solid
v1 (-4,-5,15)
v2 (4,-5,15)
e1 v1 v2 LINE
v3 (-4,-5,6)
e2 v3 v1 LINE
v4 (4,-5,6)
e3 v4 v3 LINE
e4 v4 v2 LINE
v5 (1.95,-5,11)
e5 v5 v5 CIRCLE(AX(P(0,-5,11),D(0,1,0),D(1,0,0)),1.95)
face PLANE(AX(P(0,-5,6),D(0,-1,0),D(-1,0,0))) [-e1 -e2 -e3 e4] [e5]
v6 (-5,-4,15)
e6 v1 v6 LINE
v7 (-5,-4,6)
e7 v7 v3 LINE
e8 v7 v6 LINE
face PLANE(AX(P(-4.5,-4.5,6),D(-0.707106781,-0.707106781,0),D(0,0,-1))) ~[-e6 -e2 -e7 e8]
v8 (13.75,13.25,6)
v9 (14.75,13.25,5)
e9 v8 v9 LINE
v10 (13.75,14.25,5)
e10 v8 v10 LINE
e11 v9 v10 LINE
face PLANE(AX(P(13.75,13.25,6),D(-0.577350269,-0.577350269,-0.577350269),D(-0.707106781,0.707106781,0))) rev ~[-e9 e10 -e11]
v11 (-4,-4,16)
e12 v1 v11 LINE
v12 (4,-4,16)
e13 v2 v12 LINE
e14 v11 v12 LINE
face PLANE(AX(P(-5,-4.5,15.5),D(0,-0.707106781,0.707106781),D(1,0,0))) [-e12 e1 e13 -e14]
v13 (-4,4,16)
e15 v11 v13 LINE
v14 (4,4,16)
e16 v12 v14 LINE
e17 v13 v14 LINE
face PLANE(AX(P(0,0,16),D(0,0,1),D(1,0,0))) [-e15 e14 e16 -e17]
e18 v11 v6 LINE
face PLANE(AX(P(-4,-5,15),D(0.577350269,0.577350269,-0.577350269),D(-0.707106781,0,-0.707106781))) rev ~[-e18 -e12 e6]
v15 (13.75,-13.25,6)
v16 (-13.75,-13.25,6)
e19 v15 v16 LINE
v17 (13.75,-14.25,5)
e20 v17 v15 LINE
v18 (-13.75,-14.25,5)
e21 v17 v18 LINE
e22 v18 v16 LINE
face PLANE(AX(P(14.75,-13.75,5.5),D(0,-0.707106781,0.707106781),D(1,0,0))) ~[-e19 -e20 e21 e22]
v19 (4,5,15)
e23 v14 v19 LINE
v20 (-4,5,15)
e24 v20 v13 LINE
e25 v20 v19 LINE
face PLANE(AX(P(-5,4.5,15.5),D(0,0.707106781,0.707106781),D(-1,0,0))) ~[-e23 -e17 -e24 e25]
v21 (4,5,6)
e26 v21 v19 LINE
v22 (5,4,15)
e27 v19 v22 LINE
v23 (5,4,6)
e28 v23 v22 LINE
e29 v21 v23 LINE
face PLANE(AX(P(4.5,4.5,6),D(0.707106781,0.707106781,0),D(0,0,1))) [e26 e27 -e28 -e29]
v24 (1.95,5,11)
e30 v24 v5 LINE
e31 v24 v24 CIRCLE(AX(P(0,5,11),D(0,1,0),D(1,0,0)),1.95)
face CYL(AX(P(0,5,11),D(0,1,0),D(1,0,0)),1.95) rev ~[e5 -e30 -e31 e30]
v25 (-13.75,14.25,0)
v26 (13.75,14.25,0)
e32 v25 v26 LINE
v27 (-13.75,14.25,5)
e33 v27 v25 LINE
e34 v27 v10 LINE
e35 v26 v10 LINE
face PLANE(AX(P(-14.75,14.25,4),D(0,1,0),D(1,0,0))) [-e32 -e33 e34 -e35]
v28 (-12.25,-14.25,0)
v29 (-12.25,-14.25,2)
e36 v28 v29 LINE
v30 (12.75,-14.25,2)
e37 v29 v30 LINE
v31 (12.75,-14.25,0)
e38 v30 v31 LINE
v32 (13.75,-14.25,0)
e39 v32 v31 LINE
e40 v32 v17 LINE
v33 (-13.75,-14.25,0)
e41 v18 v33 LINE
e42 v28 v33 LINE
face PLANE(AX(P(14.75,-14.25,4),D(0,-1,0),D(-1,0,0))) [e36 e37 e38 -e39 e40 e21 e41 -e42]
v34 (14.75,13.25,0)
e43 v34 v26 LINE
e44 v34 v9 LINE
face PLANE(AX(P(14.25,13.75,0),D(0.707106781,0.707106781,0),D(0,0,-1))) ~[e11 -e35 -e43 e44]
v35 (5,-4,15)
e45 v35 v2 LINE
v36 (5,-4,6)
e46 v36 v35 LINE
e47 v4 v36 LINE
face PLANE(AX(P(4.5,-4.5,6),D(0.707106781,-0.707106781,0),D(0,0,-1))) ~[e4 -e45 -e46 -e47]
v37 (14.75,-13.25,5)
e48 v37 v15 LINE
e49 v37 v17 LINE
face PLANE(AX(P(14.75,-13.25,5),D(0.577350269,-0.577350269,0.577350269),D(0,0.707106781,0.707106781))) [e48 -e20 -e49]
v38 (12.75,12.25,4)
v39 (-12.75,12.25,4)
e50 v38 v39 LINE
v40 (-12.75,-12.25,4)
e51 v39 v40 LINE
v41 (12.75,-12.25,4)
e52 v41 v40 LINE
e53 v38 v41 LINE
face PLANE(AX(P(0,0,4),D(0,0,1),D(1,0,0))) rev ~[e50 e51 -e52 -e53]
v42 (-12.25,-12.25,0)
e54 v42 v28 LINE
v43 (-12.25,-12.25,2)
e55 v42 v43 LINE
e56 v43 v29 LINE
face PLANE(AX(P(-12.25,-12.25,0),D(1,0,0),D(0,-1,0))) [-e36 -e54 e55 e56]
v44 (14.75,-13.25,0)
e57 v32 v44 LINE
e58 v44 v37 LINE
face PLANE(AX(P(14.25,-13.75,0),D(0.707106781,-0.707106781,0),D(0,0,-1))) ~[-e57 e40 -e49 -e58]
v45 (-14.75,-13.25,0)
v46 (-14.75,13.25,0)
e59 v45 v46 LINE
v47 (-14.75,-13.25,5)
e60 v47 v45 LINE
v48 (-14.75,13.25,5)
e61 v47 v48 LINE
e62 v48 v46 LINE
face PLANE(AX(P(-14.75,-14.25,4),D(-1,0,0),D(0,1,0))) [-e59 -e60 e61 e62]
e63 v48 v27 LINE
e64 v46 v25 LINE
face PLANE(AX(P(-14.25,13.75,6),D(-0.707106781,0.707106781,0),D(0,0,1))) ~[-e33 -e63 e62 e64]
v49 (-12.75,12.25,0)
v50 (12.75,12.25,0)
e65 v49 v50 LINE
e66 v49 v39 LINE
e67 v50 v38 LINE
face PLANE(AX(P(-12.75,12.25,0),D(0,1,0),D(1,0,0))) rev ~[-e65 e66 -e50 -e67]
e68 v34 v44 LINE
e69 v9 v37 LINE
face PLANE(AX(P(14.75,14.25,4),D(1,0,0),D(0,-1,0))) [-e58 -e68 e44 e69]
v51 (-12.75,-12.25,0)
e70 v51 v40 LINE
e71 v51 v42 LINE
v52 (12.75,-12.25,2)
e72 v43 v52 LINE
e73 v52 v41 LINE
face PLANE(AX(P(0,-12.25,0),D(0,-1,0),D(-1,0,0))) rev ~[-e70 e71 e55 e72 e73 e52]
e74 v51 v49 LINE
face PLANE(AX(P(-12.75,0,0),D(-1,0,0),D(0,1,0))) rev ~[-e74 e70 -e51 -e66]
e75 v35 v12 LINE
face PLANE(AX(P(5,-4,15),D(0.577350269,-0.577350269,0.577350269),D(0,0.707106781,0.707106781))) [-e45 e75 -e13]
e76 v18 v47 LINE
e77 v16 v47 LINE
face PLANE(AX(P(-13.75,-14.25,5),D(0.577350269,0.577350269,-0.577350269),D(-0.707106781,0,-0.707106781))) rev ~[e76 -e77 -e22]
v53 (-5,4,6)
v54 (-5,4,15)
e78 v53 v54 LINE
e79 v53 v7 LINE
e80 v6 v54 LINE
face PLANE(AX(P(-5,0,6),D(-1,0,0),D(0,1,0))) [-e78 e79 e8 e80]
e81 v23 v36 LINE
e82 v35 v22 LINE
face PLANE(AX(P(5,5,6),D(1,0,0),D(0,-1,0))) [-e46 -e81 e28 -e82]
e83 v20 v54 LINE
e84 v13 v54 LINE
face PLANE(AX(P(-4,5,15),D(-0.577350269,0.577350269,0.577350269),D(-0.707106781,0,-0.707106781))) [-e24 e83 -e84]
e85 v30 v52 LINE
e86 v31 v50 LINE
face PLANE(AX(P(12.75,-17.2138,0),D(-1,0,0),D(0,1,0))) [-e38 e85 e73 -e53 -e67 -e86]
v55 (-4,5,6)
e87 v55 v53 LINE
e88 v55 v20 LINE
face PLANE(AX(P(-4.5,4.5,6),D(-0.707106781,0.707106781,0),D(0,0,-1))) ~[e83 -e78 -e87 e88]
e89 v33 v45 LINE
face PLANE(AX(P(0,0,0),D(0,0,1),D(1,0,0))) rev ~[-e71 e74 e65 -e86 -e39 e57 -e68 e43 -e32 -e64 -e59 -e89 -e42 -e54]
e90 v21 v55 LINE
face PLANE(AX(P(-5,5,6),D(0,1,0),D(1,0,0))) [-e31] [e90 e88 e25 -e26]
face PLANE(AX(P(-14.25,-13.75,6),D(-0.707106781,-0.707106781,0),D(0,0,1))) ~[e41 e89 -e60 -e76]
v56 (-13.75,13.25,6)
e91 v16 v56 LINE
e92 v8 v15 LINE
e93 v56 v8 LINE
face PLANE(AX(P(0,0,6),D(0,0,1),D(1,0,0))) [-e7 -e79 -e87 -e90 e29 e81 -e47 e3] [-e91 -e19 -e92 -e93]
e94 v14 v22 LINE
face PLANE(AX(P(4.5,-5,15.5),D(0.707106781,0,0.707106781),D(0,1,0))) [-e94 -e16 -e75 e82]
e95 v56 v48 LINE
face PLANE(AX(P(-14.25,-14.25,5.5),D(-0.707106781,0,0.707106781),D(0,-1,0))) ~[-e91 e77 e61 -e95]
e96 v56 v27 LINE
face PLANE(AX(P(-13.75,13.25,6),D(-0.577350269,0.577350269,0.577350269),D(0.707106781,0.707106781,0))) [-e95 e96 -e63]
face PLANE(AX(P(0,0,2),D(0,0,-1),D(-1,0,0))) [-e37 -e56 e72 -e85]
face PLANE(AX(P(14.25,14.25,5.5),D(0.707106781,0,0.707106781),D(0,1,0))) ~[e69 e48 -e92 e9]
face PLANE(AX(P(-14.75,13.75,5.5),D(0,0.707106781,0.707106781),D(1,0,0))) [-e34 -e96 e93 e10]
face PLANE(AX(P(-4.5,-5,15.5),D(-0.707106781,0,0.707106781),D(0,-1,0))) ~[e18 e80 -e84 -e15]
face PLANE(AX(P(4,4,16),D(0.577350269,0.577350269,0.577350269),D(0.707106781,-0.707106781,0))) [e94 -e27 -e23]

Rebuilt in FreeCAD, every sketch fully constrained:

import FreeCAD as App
import Part
import Sketcher
from FreeCAD import Vector
Q = App.Units.Quantity


def edges_at(feature, points):
    """Names of the edges that pass closest to the given points."""
    edges = feature.Shape.Edges
    near = lambda p: min(range(len(edges)), key=lambda i: edges[i].distToShape(Part.Vertex(*p))[0])
    return sorted({f"Edge{near(p) + 1}" for p in points})

doc = App.newDocument("Part")
body = doc.addObject("PartDesign::Body", "Body")

# Sketch on XY plane
sketch1 = body.newObject("Sketcher::SketchObject", "Sketch")
sketch1.AttachmentSupport = (doc.getObject("XY_Plane"), [""])
sketch1.MapMode = "FlatFace"
sketch1.addGeometry([
    Part.LineSegment(Vector(-15, 14, 0), Vector(-15, -14, 0)),  # 0
    Part.LineSegment(Vector(-15, -14, 0), Vector(15, -14, 0)),  # 1
    Part.LineSegment(Vector(15, -14, 0), Vector(15, 14, 0)),  # 2
    Part.LineSegment(Vector(15, 14, 0), Vector(-15, 14, 0)),  # 3
    Part.LineSegment(Vector(-13, 12, 0), Vector(13, 12, 0)),  # 4
    Part.LineSegment(Vector(13, 12, 0), Vector(13, -12, 0)),  # 5
    Part.LineSegment(Vector(13, -12, 0), Vector(-13, -12, 0)),  # 6
    Part.LineSegment(Vector(-13, -12, 0), Vector(-13, 12, 0)),  # 7
], False)
sketch1.addConstraint([
    Sketcher.Constraint("Coincident", 0, 2, 1, 1),
    Sketcher.Constraint("Coincident", 1, 2, 2, 1),
    Sketcher.Constraint("Coincident", 2, 2, 3, 1),
    Sketcher.Constraint("Coincident", 3, 2, 0, 1),
    Sketcher.Constraint("Coincident", 4, 2, 5, 1),
    Sketcher.Constraint("Coincident", 5, 2, 6, 1),
    Sketcher.Constraint("Coincident", 6, 2, 7, 1),
    Sketcher.Constraint("Coincident", 7, 2, 4, 1),
    Sketcher.Constraint("Vertical", 0),
    Sketcher.Constraint("Horizontal", 1),
    Sketcher.Constraint("Vertical", 2),
    Sketcher.Constraint("Horizontal", 3),
    Sketcher.Constraint("Horizontal", 4),
    Sketcher.Constraint("Vertical", 5),
    Sketcher.Constraint("Horizontal", 6),
    Sketcher.Constraint("Vertical", 7),
    Sketcher.Constraint("Symmetric", 0, 2, 2, 2, -1, 1),
    Sketcher.Constraint("Symmetric", 4, 2, 6, 2, -1, 1),
    Sketcher.Constraint("DistanceX", 4, 1, 4, 2, Q("25.5 mm")),
    Sketcher.Constraint("DistanceY", 5, 2, 5, 1, Q("24.5 mm")),
    Sketcher.Constraint("DistanceX", 4, 2, 2, 2, Q("2 mm")),
    Sketcher.Constraint("DistanceY", 4, 2, 2, 2, Q("2 mm")),
])
pad1 = body.newObject("PartDesign::Pad", "Pad")
pad1.Profile = sketch1
pad1.Length = 4

# Sketch on XY plane
sketch2 = body.newObject("Sketcher::SketchObject", "Sketch001")
sketch2.AttachmentSupport = (doc.getObject("XY_Plane"), [""])
sketch2.MapMode = "FlatFace"
sketch2.AttachmentOffset = App.Placement(Vector(0, 0, 4), App.Rotation())
sketch2.addGeometry([
    Part.LineSegment(Vector(-15, -14, 0), Vector(15, -14, 0)),
    Part.LineSegment(Vector(15, -14, 0), Vector(15, 14, 0)),
    Part.LineSegment(Vector(15, 14, 0), Vector(-15, 14, 0)),
    Part.LineSegment(Vector(-15, 14, 0), Vector(-15, -14, 0)),
], False)
sketch2.addConstraint([
    Sketcher.Constraint("Coincident", 0, 2, 1, 1),
    Sketcher.Constraint("Coincident", 1, 2, 2, 1),
    Sketcher.Constraint("Coincident", 2, 2, 3, 1),
    Sketcher.Constraint("Coincident", 3, 2, 0, 1),
    Sketcher.Constraint("Horizontal", 0),
    Sketcher.Constraint("Vertical", 1),
    Sketcher.Constraint("Horizontal", 2),
    Sketcher.Constraint("Vertical", 3),
    Sketcher.Constraint("Symmetric", 0, 2, 2, 2, -1, 1),
    Sketcher.Constraint("DistanceX", 0, 1, 0, 2, Q("29.5 mm")),
    Sketcher.Constraint("DistanceY", 1, 1, 1, 2, Q("28.5 mm")),
])
pad2 = body.newObject("PartDesign::Pad", "Pad001")
pad2.Profile = sketch2
pad2.Length = 2
doc.recompute()

chamfer = body.newObject("PartDesign::Chamfer", "Chamfer")
chamfer.Base = (pad2, edges_at(pad2, [
    (14.75, 14.25, 3),
    (-14.75, 14.25, 3),
    (-14.75, 0, 6),
    (0, -14.25, 6),
    (-14.75, -14.25, 3),
    (14.75, -14.25, 3),
    (14.75, 0, 6),
    (0, 14.25, 6),
]))
chamfer.Size = 1

# Sketch on XY plane
sketch3 = body.newObject("Sketcher::SketchObject", "Sketch002")
sketch3.AttachmentSupport = (doc.getObject("XY_Plane"), [""])
sketch3.MapMode = "FlatFace"
sketch3.addGeometry([
    Part.LineSegment(Vector(-12.2, -17.2, 0), Vector(-12.2, -12.2, 0)),
    Part.LineSegment(Vector(-12.2, -12.2, 0), Vector(12.8, -12.2, 0)),
    Part.LineSegment(Vector(12.8, -12.2, 0), Vector(12.8, -17.2, 0)),
    Part.LineSegment(Vector(12.8, -17.2, 0), Vector(-12.2, -17.2, 0)),
], False)
sketch3.addConstraint([
    Sketcher.Constraint("Coincident", 0, 2, 1, 1),
    Sketcher.Constraint("Coincident", 1, 2, 2, 1),
    Sketcher.Constraint("Coincident", 2, 2, 3, 1),
    Sketcher.Constraint("Coincident", 3, 2, 0, 1),
    Sketcher.Constraint("Vertical", 0),
    Sketcher.Constraint("Horizontal", 1),
    Sketcher.Constraint("Vertical", 2),
    Sketcher.Constraint("Horizontal", 3),
    Sketcher.Constraint("DistanceX", 1, 1, 1, 2, Q("25 mm")),
    Sketcher.Constraint("DistanceX", 0, 2, -1, 1, Q("12.25 mm")),
    Sketcher.Constraint("DistanceY", 0, 2, -1, 1, Q("12.25 mm")),
    Sketcher.Constraint("DistanceY", 0, 1, 0, 2, Q("4.9638 mm")),
])
pocket1 = body.newObject("PartDesign::Pocket", "Pocket")
pocket1.Profile = sketch3
pocket1.Length = 2
pocket1.Reversed = True

# Sketch on XY plane
sketch4 = body.newObject("Sketcher::SketchObject", "Sketch003")
sketch4.AttachmentSupport = (doc.getObject("XY_Plane"), [""])
sketch4.MapMode = "FlatFace"
sketch4.AttachmentOffset = App.Placement(Vector(0, 0, 6), App.Rotation())
sketch4.addGeometry([
    Part.LineSegment(Vector(-5, 5, 0), Vector(-5, -5, 0)),
    Part.LineSegment(Vector(-5, -5, 0), Vector(5, -5, 0)),
    Part.LineSegment(Vector(5, -5, 0), Vector(5, 5, 0)),
    Part.LineSegment(Vector(5, 5, 0), Vector(-5, 5, 0)),
], False)
sketch4.addConstraint([
    Sketcher.Constraint("Coincident", 0, 2, 1, 1),
    Sketcher.Constraint("Coincident", 1, 2, 2, 1),
    Sketcher.Constraint("Coincident", 2, 2, 3, 1),
    Sketcher.Constraint("Coincident", 3, 2, 0, 1),
    Sketcher.Constraint("Vertical", 0),
    Sketcher.Constraint("Horizontal", 1),
    Sketcher.Constraint("Vertical", 2),
    Sketcher.Constraint("Horizontal", 3),
    Sketcher.Constraint("Symmetric", 0, 2, 2, 2, -1, 1),
    Sketcher.Constraint("Equal", 3, 0),
    Sketcher.Constraint("DistanceX", 1, 1, 1, 2, Q("10 mm")),
])
pad3 = body.newObject("PartDesign::Pad", "Pad002")
pad3.Profile = sketch4
pad3.Length = 10

# Sketch on XZ plane
sketch5 = body.newObject("Sketcher::SketchObject", "Sketch004")
sketch5.AttachmentSupport = (doc.getObject("XZ_Plane"), [""])
sketch5.MapMode = "FlatFace"
sketch5.AttachmentOffset = App.Placement(Vector(0, 0, -5), App.Rotation())
sketch5.addGeometry(Part.Circle(Vector(0, 11, 0), Vector(0, 0, 1), 1.9), False)
sketch5.addConstraint([
    Sketcher.Constraint("PointOnObject", 0, 3, -2),
    Sketcher.Constraint("Diameter", 0, Q("3.9 mm")),
    Sketcher.Constraint("DistanceY", -1, 1, 0, 3, Q("11 mm")),
])
pocket2 = body.newObject("PartDesign::Pocket", "Pocket001")
pocket2.Profile = sketch5
pocket2.Length = 26
pocket2.Reversed = True
doc.recompute()

chamfer2 = body.newObject("PartDesign::Chamfer", "Chamfer001")
chamfer2.Base = (pocket2, edges_at(pocket2, [
    (-5, 0, 16),
    (0, -5, 16),
    (5, -5, 11),
    (5, 5, 11),
    (0, 5, 16),
    (-5, 5, 11),
    (-5, -5, 11),
    (5, 0, 16),
]))
chamfer2.Size = 1

doc.recompute()
